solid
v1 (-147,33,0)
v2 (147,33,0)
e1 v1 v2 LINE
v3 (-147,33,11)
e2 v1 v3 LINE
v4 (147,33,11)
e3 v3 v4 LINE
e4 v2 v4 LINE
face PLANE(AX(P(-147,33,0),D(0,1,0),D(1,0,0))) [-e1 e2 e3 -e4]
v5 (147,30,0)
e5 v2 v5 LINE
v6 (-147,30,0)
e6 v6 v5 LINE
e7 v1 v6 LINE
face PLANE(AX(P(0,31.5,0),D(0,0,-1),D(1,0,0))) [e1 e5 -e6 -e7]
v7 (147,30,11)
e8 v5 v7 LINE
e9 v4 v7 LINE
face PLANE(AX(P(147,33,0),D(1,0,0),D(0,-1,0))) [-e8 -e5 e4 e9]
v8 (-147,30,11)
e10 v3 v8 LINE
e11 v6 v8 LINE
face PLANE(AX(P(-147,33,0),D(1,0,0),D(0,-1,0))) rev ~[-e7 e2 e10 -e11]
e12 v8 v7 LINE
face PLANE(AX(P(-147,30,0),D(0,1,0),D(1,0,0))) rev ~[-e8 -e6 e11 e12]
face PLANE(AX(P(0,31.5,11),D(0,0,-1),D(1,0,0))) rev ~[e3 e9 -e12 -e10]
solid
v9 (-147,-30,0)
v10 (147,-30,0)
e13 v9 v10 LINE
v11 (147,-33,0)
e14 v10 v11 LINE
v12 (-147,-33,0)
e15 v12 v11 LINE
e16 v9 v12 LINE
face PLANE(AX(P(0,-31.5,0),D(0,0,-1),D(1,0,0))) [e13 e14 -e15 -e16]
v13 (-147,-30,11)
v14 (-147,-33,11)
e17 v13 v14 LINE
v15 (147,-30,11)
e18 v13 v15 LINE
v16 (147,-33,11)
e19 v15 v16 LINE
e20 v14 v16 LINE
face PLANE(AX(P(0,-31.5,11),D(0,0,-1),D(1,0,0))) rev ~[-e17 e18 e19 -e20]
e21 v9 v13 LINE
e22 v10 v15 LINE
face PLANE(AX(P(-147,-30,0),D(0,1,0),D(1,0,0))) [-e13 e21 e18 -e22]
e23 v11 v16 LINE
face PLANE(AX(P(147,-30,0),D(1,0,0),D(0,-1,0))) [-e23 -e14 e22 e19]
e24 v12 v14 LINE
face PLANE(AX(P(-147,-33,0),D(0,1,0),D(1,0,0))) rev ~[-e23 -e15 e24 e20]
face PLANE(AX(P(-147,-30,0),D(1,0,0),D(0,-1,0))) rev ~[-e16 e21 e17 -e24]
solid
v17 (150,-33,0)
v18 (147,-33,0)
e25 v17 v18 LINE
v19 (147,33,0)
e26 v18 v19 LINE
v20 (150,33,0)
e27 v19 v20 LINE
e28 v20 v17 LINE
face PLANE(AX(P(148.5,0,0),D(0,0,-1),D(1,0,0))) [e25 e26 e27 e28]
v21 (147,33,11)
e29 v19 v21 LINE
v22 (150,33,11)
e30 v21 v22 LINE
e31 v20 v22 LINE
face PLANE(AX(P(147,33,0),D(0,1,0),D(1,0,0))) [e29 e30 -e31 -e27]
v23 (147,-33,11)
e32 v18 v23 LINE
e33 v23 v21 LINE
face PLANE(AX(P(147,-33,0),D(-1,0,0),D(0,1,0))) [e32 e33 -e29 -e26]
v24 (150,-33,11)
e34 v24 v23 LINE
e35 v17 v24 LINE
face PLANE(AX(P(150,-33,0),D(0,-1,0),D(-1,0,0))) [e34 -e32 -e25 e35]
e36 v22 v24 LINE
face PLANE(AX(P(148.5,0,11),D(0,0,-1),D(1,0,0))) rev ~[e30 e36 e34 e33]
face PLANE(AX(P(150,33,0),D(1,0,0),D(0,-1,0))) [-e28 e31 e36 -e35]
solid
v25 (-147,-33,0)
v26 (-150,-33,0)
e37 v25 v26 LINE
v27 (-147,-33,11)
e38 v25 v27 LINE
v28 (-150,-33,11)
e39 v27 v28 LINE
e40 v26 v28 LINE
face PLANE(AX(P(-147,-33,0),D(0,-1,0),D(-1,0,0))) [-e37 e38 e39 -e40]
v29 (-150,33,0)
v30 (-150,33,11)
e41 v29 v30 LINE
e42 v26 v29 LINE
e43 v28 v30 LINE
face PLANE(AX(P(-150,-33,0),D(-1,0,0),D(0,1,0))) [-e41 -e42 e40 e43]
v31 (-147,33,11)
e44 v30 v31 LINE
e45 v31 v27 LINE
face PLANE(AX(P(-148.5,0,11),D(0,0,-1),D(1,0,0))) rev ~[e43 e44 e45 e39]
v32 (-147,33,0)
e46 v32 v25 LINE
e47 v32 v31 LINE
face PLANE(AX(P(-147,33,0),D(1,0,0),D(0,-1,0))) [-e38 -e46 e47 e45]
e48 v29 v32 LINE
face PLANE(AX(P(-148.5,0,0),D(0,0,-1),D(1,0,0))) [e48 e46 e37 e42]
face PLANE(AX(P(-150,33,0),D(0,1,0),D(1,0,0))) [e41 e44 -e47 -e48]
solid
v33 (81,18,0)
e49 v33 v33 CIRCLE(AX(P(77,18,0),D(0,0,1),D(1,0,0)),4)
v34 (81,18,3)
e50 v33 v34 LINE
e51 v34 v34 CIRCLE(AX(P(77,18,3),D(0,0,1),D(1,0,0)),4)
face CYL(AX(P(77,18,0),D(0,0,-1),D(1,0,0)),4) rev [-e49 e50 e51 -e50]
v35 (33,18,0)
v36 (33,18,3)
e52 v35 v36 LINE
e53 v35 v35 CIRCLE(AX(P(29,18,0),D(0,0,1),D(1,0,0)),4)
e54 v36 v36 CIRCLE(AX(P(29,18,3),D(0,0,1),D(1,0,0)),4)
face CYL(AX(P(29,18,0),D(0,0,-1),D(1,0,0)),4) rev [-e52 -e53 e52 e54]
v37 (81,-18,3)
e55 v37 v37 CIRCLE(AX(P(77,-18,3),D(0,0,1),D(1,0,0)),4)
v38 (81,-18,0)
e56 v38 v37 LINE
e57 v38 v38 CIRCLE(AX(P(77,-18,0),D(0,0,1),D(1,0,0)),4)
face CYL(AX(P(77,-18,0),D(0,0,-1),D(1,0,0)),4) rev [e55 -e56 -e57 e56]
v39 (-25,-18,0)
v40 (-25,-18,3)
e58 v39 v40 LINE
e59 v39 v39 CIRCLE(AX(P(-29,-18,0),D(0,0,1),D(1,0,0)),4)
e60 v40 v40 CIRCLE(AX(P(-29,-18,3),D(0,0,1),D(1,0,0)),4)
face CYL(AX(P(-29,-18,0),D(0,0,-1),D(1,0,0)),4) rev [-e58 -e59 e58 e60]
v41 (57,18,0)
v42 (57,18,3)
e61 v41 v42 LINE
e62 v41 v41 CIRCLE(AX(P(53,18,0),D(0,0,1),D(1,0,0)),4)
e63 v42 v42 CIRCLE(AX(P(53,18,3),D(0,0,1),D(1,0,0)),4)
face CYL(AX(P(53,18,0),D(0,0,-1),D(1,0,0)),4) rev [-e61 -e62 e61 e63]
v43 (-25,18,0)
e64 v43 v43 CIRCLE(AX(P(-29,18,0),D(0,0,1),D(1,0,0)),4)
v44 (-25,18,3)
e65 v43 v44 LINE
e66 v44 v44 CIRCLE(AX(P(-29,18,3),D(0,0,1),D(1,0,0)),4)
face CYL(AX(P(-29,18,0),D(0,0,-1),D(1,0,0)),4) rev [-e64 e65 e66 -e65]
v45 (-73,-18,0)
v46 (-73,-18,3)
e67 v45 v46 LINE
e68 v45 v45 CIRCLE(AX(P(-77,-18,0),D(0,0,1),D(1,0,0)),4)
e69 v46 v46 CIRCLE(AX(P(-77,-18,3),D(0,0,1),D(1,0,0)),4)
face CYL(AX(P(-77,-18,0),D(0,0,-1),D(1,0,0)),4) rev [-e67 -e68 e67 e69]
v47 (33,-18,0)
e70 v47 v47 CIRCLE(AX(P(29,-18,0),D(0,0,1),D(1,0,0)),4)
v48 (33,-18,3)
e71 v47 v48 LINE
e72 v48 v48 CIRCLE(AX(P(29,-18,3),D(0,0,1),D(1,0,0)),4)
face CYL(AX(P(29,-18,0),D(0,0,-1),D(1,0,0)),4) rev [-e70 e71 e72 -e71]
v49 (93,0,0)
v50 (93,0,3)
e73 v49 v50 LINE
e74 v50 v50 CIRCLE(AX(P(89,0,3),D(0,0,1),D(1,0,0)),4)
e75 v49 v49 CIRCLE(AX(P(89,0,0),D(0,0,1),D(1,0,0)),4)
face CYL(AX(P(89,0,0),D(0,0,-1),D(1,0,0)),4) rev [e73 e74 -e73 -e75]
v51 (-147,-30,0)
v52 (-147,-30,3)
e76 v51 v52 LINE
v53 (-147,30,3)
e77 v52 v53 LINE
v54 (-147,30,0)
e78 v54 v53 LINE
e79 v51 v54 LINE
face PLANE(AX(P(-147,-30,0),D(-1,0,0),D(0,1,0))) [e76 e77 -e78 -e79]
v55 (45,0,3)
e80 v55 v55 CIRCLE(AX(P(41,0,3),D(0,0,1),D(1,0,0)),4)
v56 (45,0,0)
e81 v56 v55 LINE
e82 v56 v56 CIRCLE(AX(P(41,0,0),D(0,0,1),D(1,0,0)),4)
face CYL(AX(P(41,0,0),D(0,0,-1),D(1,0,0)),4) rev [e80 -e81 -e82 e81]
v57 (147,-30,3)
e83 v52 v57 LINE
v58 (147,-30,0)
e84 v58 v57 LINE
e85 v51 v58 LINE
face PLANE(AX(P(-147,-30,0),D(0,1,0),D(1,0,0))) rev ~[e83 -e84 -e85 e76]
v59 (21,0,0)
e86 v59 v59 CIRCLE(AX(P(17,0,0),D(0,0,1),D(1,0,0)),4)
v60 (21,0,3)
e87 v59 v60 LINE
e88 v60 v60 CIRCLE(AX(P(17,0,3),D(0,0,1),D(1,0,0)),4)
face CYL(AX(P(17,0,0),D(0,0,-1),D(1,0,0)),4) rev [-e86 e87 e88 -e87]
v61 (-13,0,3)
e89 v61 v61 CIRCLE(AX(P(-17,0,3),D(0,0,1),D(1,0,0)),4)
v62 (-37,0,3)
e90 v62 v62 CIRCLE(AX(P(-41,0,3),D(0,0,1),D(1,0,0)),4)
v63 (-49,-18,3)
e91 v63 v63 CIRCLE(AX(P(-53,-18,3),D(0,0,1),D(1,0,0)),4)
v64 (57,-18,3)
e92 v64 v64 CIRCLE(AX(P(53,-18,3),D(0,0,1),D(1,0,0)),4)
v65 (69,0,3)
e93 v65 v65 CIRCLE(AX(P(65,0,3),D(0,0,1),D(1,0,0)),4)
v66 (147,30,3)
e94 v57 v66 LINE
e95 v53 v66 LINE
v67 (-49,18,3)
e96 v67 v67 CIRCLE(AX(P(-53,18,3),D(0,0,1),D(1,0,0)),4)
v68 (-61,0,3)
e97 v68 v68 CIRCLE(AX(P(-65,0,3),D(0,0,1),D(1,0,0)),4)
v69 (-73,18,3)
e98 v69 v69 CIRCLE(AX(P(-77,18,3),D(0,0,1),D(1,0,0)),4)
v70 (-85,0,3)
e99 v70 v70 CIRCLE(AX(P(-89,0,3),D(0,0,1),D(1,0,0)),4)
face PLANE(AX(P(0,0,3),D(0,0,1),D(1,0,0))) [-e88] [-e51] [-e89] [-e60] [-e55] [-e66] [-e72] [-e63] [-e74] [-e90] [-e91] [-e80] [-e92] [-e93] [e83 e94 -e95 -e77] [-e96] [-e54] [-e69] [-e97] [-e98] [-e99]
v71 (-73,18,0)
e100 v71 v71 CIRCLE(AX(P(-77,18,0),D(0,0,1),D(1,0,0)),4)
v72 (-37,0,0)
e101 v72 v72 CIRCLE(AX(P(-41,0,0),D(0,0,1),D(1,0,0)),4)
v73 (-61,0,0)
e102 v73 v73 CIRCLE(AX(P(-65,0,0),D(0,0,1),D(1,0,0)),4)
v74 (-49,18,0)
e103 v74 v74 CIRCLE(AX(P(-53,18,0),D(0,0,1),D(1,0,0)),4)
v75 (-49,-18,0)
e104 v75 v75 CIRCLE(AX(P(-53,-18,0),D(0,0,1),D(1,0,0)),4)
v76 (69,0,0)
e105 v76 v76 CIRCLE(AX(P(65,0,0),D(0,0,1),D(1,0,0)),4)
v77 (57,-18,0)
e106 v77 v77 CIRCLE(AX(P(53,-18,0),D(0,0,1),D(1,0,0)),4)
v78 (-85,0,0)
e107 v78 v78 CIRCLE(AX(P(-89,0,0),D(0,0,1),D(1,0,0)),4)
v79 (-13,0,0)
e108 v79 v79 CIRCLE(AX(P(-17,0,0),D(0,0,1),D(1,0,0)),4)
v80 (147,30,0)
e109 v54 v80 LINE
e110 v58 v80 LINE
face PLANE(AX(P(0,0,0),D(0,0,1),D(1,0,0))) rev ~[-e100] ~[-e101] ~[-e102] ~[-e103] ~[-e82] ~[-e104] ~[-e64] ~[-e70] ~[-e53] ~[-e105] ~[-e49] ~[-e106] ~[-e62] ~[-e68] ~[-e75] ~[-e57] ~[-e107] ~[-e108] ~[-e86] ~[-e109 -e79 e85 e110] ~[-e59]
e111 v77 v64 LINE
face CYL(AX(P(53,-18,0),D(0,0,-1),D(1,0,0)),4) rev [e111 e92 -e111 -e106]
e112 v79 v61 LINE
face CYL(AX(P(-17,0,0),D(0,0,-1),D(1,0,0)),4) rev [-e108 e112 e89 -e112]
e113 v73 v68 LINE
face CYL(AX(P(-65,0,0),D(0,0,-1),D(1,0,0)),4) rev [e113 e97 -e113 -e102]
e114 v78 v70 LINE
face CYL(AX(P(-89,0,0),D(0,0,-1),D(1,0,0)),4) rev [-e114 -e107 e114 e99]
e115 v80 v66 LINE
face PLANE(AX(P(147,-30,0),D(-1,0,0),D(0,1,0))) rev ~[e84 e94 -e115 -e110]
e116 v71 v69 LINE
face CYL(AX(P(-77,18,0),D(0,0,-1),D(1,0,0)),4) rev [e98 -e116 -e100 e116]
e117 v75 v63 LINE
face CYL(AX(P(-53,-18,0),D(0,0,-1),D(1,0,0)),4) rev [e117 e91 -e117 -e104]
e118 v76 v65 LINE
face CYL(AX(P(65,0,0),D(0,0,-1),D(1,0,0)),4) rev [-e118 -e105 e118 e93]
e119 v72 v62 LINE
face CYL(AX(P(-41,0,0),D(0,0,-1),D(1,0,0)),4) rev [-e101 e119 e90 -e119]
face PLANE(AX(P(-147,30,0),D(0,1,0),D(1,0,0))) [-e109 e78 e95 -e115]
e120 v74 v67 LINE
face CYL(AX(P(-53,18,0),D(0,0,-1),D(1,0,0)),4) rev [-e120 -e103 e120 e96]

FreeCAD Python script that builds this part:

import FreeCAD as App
import Part
import Sketcher


def add_polygon(sketch, points):
    """Adds a closed chain of lines whose ends are joined by coincident constraints."""
    first, n = sketch.GeometryCount, len(points)
    for a, b in zip(points, points[1:] + points[:1]):
        sketch.addGeometry(Part.LineSegment(App.Vector(*a, 0), App.Vector(*b, 0)), False)
    for i in range(n):
        sketch.addConstraint(Sketcher.Constraint("Coincident", first + i, 2, first + (i + 1) % n, 1))

doc = App.newDocument("Part")
body = doc.addObject("PartDesign::Body", "Body")

sketch1 = body.newObject("Sketcher::SketchObject", "Sketch")
sketch1.AttachmentSupport = (doc.getObject("XY_Plane"), [""])
sketch1.MapMode = "FlatFace"
add_polygon(sketch1, [(-147, 30), (-147, -30), (147, -30), (147, 30)])
sketch1.addGeometry(Part.Circle(App.Vector(-77, -18, 0), App.Vector(0, 0, 1), 4), False)
sketch1.addGeometry(Part.Circle(App.Vector(-53, -18, 0), App.Vector(0, 0, 1), 4), False)
sketch1.addGeometry(Part.Circle(App.Vector(-29, -18, 0), App.Vector(0, 0, 1), 4), False)
sketch1.addGeometry(Part.Circle(App.Vector(29, -18, 0), App.Vector(0, 0, 1), 4), False)
sketch1.addGeometry(Part.Circle(App.Vector(53, -18, 0), App.Vector(0, 0, 1), 4), False)
sketch1.addGeometry(Part.Circle(App.Vector(77, -18, 0), App.Vector(0, 0, 1), 4), False)
sketch1.addGeometry(Part.Circle(App.Vector(-89, 0, 0), App.Vector(0, 0, 1), 4), False)
sketch1.addGeometry(Part.Circle(App.Vector(-65, 0, 0), App.Vector(0, 0, 1), 4), False)
sketch1.addGeometry(Part.Circle(App.Vector(-41, 0, 0), App.Vector(0, 0, 1), 4), False)
sketch1.addGeometry(Part.Circle(App.Vector(-17, 0, 0), App.Vector(0, 0, 1), 4), False)
sketch1.addGeometry(Part.Circle(App.Vector(-77, 18, 0), App.Vector(0, 0, 1), 4), False)
sketch1.addGeometry(Part.Circle(App.Vector(-53, 18, 0), App.Vector(0, 0, 1), 4), False)
sketch1.addGeometry(Part.Circle(App.Vector(-29, 18, 0), App.Vector(0, 0, 1), 4), False)
sketch1.addGeometry(Part.Circle(App.Vector(17, 0, 0), App.Vector(0, 0, 1), 4), False)
sketch1.addGeometry(Part.Circle(App.Vector(41, 0, 0), App.Vector(0, 0, 1), 4), False)
sketch1.addGeometry(Part.Circle(App.Vector(65, 0, 0), App.Vector(0, 0, 1), 4), False)
sketch1.addGeometry(Part.Circle(App.Vector(89, 0, 0), App.Vector(0, 0, 1), 4), False)
sketch1.addGeometry(Part.Circle(App.Vector(29, 18, 0), App.Vector(0, 0, 1), 4), False)
sketch1.addGeometry(Part.Circle(App.Vector(53, 18, 0), App.Vector(0, 0, 1), 4), False)
sketch1.addGeometry(Part.Circle(App.Vector(77, 18, 0), App.Vector(0, 0, 1), 4), False)
sketch1.addConstraint([
    Sketcher.Constraint("Vertical", 0),
    Sketcher.Constraint("Horizontal", 1),
    Sketcher.Constraint("Vertical", 2),
    Sketcher.Constraint("Horizontal", 3),
    Sketcher.Constraint("Equal", 4, 5),
    Sketcher.Constraint("Equal", 5, 6),
    Sketcher.Constraint("Equal", 6, 7),
    Sketcher.Constraint("Equal", 7, 8),
    Sketcher.Constraint("Equal", 8, 9),
    Sketcher.Constraint("Equal", 9, 10),
    Sketcher.Constraint("Equal", 10, 11),
    Sketcher.Constraint("Equal", 11, 12),
    Sketcher.Constraint("Equal", 12, 13),
    Sketcher.Constraint("Equal", 13, 14),
    Sketcher.Constraint("Equal", 14, 15),
    Sketcher.Constraint("Equal", 15, 16),
    Sketcher.Constraint("Equal", 16, 17),
    Sketcher.Constraint("Equal", 17, 18),
    Sketcher.Constraint("Equal", 18, 19),
    Sketcher.Constraint("Equal", 19, 20),
    Sketcher.Constraint("Equal", 20, 21),
    Sketcher.Constraint("Equal", 21, 22),
    Sketcher.Constraint("Equal", 22, 23),
    Sketcher.Constraint("Symmetric", 9, 3, 14, 3, -1, 1),
    Sketcher.Constraint("Symmetric", 8, 3, 15, 3, -1, 1),
    Sketcher.Constraint("Symmetric", 7, 3, 16, 3, -1, 1),
    Sketcher.Constraint("Symmetric", 13, 3, 17, 3, -1, 1),
    Sketcher.Constraint("Symmetric", 12, 3, 18, 3, -1, 1),
    Sketcher.Constraint("Symmetric", 11, 3, 19, 3, -1, 1),
    Sketcher.Constraint("Symmetric", 10, 3, 20, 3, -1, 1),
    Sketcher.Constraint("Symmetric", 6, 3, 21, 3, -1, 1),
    Sketcher.Constraint("Symmetric", 5, 3, 22, 3, -1, 1),
    Sketcher.Constraint("Symmetric", 4, 3, 23, 3, -1, 1),
    Sketcher.Constraint("Symmetric", 0, 2, 2, 2, -1, 1),
    Sketcher.Constraint("Symmetric", 6, 3, 7, 3, -2),
    Sketcher.Constraint("Symmetric", 5, 3, 8, 3, -2),
    Sketcher.Constraint("Symmetric", 4, 3, 9, 3, -2),
    Sketcher.Constraint("PointOnObject", 10, 3, -1),
    Sketcher.Constraint("PointOnObject", 11, 3, -1),
    Sketcher.Constraint("PointOnObject", 12, 3, -1),
    Sketcher.Constraint("PointOnObject", 13, 3, -1),
    Sketcher.Constraint("Horizontal", 4, 3, 5, 3),
    Sketcher.Constraint("Horizontal", 5, 3, 6, 3),
    Sketcher.Constraint("Diameter", 4, 8.0),
    Sketcher.Constraint("DistanceX", 1, 1, 1, 2, 294.0),
    Sketcher.Constraint("DistanceY", 0, 2, 0, 1, 60.0),
    Sketcher.Constraint("DistanceX", 4, 3, -1, 1, 77.0),
    Sketcher.Constraint("DistanceY", 4, 3, -1, 1, 18.0),
    Sketcher.Constraint("DistanceX", 5, 3, -1, 1, 53.0),
    Sketcher.Constraint("DistanceX", 6, 3, -1, 1, 29.0),
    Sketcher.Constraint("DistanceX", 10, 3, -1, 1, 89.0),
    Sketcher.Constraint("DistanceX", 11, 3, -1, 1, 65.0),
    Sketcher.Constraint("DistanceX", 12, 3, -1, 1, 41.0),
    Sketcher.Constraint("DistanceX", 13, 3, -1, 1, 17.0),
])
pad1 = body.newObject("PartDesign::Pad", "Pad")
pad1.Profile = sketch1
pad1.Length = 3
body2 = doc.addObject("PartDesign::Body", "Body001")
body2.AllowCompound = True

sketch2 = body2.newObject("Sketcher::SketchObject", "Sketch001")
sketch2.AttachmentSupport = (doc.getObject("XY_Plane001"), [""])
sketch2.MapMode = "FlatFace"
add_polygon(sketch2, [(-147, -33), (-147, -30), (147, -30), (147, -33)])
add_polygon(sketch2, [(-147, 30), (-147, 33), (147, 33), (147, 30)])
sketch2.addConstraint([
    Sketcher.Constraint("Vertical", 0),
    Sketcher.Constraint("Horizontal", 1),
    Sketcher.Constraint("Vertical", 2),
    Sketcher.Constraint("Horizontal", 3),
    Sketcher.Constraint("Vertical", 4),
    Sketcher.Constraint("Horizontal", 5),
    Sketcher.Constraint("Vertical", 6),
    Sketcher.Constraint("Horizontal", 7),
    Sketcher.Constraint("Symmetric", 2, 2, 4, 2, -1, 1),
    Sketcher.Constraint("Symmetric", 0, 2, 6, 2, -1, 1),
    Sketcher.Constraint("Vertical", 3, 2, 4, 2),
    Sketcher.Constraint("DistanceX", 1, 1, 1, 2, 294.0),
    Sketcher.Constraint("DistanceY", 0, 1, 0, 2, 3.0),
    Sketcher.Constraint("DistanceY", 0, 2, -1, 1, 30.0),
])
pad2 = body2.newObject("PartDesign::Pad", "Pad001")
pad2.Profile = sketch2
pad2.Length = 11
body3 = doc.addObject("PartDesign::Body", "Body002")
body3.AllowCompound = True

sketch3 = body3.newObject("Sketcher::SketchObject", "Sketch002")
sketch3.AttachmentSupport = (doc.getObject("XY_Plane002"), [""])
sketch3.MapMode = "FlatFace"
add_polygon(sketch3, [(-147, -33), (-150, -33), (-150, 33), (-147, 33)])
add_polygon(sketch3, [(147, -33), (147, 33), (150, 33), (150, -33)])
sketch3.addConstraint([
    Sketcher.Constraint("Horizontal", 0),
    Sketcher.Constraint("Vertical", 1),
    Sketcher.Constraint("Horizontal", 2),
    Sketcher.Constraint("Vertical", 3),
    Sketcher.Constraint("Vertical", 4),
    Sketcher.Constraint("Horizontal", 5),
    Sketcher.Constraint("Vertical", 6),
    Sketcher.Constraint("Horizontal", 7),
    Sketcher.Constraint("Symmetric", 3, 2, 4, 2, -1, 1),
    Sketcher.Constraint("Symmetric", 1, 2, 6, 2, -1, 1),
    Sketcher.Constraint("Horizontal", 2, 2, 4, 2),
    Sketcher.Constraint("DistanceX", 0, 2, 0, 1, 3.0),
    Sketcher.Constraint("DistanceY", 1, 1, 1, 2, 66.0),
    Sketcher.Constraint("DistanceX", 0, 2, -1, 1, 150.0),
])
pad3 = body3.newObject("PartDesign::Pad", "Pad002")
pad3.Profile = sketch3
pad3.Length = 11

doc.recompute()
